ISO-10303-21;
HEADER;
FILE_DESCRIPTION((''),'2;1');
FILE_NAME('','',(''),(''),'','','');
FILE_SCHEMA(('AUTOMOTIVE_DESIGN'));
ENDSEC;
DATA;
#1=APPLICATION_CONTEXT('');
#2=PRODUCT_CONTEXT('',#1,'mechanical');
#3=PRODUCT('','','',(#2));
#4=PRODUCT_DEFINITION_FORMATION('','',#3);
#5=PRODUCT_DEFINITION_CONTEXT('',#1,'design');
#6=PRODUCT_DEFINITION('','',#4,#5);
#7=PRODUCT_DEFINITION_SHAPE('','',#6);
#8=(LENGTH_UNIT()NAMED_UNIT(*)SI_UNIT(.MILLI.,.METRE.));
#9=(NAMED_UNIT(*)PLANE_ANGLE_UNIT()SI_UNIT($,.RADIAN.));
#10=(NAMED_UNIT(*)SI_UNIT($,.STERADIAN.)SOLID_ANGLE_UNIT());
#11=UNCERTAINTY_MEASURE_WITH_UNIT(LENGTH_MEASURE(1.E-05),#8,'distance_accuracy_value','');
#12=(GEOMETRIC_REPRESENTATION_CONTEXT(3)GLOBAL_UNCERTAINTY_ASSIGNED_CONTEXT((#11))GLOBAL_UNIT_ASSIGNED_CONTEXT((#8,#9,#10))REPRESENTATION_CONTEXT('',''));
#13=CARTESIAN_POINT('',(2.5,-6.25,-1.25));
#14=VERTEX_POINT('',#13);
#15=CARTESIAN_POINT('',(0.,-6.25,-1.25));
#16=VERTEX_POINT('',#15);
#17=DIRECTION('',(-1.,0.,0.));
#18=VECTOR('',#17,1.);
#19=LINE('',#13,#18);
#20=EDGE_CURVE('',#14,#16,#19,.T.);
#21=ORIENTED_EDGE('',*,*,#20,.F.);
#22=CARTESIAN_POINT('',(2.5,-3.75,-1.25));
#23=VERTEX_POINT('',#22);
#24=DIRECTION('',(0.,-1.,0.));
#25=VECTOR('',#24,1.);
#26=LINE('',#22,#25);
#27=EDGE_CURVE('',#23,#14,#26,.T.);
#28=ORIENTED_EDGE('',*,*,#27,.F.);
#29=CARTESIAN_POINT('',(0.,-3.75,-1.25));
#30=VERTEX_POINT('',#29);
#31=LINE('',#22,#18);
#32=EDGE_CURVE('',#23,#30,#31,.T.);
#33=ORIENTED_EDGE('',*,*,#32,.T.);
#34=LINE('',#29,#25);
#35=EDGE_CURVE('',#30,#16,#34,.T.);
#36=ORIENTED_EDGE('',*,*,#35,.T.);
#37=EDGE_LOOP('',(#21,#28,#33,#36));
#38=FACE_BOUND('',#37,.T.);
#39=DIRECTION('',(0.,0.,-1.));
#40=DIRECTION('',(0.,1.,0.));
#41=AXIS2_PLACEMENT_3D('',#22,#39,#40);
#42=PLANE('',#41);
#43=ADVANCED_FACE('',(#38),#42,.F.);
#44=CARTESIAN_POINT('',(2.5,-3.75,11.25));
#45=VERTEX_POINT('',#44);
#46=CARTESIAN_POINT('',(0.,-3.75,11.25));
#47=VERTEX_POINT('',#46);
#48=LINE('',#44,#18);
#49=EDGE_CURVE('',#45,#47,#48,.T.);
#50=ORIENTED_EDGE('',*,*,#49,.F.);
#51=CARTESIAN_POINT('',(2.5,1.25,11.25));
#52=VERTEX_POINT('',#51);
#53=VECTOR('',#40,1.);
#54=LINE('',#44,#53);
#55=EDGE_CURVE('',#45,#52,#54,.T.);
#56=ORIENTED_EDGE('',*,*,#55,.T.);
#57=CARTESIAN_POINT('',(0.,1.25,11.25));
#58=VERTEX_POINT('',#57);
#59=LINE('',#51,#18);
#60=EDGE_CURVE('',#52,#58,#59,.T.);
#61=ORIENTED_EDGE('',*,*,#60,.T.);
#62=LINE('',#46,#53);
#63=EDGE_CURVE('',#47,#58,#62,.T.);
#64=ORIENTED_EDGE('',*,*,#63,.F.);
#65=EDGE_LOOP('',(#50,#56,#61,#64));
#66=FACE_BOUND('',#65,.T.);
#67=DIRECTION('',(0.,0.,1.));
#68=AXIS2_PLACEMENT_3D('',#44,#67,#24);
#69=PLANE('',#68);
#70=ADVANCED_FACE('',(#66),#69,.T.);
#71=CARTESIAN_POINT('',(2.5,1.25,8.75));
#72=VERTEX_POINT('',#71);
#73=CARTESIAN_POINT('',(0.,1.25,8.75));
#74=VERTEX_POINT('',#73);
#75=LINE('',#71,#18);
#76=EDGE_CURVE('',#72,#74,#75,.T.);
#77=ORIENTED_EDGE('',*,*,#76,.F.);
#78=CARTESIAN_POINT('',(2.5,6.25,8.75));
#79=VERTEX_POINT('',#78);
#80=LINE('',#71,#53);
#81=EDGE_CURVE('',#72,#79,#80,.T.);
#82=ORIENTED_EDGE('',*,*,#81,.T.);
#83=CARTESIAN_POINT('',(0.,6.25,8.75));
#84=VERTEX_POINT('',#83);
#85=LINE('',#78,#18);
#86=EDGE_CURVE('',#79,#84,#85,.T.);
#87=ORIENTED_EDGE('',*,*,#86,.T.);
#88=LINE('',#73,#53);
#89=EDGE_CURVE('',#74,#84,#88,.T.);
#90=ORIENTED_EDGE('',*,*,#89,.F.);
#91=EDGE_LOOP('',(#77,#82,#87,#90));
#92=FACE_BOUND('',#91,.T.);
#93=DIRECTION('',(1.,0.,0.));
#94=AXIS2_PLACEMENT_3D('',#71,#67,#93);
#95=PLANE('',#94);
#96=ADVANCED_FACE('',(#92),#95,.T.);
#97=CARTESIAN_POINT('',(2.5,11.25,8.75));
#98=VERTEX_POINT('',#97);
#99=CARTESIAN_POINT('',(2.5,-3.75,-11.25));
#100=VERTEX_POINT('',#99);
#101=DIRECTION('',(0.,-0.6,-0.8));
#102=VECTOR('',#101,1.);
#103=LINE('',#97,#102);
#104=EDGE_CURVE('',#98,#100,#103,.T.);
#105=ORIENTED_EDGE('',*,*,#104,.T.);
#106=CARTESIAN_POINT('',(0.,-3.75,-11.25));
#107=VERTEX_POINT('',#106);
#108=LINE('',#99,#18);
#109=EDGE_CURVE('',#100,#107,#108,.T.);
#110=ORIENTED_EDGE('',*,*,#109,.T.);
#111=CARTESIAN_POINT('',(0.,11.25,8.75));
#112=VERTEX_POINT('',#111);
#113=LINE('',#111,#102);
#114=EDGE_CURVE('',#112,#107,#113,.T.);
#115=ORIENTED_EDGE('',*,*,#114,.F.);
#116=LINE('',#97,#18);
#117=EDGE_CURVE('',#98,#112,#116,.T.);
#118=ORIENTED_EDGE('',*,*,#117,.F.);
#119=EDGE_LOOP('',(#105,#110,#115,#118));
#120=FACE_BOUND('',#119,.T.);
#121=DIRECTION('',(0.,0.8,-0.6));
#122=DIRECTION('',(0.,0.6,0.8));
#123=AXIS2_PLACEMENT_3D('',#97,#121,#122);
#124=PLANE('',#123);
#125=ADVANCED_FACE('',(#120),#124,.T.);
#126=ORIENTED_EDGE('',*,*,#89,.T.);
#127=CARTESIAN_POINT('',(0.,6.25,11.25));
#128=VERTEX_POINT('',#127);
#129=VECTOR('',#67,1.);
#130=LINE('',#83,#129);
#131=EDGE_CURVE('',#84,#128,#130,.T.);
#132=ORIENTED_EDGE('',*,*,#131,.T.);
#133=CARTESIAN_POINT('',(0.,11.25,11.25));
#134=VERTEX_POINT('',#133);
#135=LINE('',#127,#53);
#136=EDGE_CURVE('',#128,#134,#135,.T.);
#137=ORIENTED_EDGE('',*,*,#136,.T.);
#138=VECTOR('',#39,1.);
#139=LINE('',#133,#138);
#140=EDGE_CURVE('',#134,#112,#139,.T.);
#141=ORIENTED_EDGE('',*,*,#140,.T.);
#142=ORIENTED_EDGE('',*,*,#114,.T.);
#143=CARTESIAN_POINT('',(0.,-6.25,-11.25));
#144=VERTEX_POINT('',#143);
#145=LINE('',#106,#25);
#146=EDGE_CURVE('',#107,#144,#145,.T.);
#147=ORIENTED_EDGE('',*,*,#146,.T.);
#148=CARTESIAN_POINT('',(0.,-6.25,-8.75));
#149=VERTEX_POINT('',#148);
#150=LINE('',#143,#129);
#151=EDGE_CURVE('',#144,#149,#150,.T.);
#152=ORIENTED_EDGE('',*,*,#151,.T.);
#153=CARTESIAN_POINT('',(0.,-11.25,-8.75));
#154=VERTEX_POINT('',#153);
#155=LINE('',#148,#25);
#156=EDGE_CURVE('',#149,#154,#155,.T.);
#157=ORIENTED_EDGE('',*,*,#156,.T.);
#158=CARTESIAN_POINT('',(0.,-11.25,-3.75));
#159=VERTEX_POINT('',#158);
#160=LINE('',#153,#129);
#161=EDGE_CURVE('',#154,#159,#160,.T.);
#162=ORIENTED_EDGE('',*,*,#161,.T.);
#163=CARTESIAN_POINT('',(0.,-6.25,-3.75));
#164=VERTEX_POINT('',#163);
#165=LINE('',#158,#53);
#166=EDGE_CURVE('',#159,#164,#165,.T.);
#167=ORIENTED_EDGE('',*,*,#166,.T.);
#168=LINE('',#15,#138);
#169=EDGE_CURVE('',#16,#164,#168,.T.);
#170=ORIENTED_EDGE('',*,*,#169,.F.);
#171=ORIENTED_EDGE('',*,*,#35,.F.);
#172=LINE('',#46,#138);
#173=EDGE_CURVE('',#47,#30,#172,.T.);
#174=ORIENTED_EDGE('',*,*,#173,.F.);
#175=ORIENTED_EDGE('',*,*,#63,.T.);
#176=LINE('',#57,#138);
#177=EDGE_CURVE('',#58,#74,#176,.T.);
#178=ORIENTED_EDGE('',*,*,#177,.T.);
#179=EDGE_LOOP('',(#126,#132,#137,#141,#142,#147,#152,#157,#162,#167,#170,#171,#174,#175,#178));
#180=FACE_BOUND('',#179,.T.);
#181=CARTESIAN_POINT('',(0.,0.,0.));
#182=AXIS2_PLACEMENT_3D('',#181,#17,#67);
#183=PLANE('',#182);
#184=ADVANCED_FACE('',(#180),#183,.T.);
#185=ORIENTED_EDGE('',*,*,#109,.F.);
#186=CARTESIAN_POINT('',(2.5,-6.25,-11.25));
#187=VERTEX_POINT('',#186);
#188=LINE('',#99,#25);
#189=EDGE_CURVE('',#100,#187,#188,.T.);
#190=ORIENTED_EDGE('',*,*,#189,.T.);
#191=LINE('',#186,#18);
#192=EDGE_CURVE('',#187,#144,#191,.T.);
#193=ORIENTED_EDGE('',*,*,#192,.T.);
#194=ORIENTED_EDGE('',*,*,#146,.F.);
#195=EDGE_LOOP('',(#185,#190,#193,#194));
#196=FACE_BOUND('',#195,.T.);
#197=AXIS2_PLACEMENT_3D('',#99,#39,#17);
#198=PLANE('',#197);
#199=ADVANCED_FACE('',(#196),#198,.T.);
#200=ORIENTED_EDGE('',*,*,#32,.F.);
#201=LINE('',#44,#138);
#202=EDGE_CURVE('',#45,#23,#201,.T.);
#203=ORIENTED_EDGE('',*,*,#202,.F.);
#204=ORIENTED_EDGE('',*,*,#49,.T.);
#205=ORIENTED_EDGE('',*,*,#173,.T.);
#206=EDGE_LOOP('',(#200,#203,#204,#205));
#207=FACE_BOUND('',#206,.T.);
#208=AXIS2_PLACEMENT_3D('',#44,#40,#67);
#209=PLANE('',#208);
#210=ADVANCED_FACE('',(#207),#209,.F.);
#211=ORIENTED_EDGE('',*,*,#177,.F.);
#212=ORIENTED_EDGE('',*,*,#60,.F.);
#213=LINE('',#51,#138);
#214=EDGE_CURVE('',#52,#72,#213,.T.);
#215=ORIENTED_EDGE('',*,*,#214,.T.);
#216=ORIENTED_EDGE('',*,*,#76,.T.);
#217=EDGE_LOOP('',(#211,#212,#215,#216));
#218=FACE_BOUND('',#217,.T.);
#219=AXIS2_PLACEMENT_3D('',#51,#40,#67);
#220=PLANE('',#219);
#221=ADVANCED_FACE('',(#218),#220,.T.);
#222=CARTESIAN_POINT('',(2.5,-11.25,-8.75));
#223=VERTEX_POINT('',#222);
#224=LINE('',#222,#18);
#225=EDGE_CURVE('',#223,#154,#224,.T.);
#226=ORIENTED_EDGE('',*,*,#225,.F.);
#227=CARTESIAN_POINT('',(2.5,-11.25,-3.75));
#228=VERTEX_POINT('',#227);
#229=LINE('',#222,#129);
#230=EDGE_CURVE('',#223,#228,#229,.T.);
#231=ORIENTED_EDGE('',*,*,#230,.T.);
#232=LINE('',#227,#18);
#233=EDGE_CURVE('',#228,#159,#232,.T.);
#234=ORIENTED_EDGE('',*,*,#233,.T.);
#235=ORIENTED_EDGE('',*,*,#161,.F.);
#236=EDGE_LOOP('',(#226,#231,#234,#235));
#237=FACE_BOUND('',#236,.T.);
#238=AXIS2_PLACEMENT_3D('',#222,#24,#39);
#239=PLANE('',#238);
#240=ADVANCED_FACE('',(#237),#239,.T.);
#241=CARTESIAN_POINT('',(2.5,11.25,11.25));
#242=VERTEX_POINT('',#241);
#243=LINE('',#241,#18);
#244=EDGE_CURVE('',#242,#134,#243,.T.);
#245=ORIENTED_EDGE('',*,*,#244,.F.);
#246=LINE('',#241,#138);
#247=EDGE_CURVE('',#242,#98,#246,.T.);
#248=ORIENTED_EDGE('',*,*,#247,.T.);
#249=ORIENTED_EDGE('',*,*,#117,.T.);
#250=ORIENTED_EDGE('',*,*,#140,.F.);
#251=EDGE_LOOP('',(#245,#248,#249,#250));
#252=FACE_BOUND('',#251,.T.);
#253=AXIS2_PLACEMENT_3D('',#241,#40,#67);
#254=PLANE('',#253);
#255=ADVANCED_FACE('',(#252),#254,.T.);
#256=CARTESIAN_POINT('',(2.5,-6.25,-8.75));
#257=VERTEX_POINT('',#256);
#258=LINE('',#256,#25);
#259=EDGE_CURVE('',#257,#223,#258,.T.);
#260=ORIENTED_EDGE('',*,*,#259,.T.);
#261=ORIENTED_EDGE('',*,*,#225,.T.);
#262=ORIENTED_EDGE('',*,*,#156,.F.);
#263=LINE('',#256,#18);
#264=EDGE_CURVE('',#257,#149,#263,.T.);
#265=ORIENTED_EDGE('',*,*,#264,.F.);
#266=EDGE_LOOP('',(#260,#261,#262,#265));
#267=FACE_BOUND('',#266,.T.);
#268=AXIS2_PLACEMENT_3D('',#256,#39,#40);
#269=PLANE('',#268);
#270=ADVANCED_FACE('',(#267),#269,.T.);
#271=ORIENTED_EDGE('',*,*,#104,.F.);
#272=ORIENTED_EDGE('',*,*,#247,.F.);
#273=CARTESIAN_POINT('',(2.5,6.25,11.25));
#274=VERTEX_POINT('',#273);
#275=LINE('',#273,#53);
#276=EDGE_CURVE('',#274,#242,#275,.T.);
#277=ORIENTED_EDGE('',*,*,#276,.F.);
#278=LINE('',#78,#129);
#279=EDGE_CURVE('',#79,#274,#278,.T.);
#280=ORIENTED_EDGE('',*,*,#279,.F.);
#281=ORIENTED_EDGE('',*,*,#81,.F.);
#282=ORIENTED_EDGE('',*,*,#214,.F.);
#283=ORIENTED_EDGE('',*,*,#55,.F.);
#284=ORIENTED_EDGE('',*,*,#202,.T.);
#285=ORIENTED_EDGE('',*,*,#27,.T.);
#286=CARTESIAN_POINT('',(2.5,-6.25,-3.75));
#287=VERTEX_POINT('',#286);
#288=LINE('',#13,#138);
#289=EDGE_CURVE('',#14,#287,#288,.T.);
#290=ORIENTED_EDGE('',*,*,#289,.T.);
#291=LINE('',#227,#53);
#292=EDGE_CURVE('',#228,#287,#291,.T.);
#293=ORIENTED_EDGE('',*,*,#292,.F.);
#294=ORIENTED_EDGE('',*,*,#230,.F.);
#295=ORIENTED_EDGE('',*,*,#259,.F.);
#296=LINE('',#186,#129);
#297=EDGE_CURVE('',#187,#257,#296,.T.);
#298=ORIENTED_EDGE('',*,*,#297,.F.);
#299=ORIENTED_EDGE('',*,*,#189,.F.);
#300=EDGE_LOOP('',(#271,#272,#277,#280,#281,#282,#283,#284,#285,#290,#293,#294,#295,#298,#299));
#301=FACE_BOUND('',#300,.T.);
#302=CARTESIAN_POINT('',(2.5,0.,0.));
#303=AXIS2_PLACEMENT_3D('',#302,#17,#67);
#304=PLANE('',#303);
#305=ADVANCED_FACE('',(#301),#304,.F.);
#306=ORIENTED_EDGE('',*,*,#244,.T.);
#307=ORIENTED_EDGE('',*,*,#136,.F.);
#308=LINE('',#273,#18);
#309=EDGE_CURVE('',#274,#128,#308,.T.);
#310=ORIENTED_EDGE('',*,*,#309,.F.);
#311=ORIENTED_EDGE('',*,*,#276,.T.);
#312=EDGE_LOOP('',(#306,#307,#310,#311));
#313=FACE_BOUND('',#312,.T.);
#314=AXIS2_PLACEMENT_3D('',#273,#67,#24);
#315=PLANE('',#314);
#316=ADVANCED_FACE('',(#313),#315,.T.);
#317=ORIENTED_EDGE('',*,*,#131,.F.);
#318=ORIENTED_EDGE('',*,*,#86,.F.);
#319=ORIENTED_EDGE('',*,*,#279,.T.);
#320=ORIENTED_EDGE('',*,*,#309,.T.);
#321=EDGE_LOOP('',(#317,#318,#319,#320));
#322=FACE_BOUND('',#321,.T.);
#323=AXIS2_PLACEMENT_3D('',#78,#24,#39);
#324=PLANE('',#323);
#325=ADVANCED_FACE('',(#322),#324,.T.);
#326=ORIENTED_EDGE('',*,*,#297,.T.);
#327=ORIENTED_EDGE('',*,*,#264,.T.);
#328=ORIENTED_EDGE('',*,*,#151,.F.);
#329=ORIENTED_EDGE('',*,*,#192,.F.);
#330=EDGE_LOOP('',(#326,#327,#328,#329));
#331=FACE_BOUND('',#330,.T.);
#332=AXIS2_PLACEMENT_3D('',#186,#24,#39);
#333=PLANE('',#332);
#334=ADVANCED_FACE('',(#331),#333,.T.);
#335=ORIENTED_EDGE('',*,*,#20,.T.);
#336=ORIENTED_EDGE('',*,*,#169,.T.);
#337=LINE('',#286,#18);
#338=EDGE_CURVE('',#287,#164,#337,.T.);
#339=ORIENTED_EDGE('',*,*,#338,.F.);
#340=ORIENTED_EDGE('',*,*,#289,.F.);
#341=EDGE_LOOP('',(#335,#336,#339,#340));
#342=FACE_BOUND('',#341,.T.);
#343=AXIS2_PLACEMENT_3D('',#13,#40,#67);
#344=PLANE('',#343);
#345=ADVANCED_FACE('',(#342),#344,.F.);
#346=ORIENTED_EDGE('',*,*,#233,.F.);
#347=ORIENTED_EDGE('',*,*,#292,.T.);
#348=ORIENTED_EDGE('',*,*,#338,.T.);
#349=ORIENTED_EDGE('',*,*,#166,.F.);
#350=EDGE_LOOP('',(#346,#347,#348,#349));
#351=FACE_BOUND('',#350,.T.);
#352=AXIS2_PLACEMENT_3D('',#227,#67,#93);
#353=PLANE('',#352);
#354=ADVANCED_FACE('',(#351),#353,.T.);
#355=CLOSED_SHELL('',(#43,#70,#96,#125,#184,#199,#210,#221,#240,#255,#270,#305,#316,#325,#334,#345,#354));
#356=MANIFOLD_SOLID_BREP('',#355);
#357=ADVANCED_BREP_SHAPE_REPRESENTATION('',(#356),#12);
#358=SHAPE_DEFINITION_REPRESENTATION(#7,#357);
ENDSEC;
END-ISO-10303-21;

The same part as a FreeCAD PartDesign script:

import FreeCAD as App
import Part
import Sketcher
from FreeCAD import Vector


def add_polygon(sketch, points):
    """Adds a closed chain of lines whose ends are joined by coincident constraints."""
    first, n = sketch.GeometryCount, len(points)
    for a, b in zip(points, points[1:] + points[:1]):
        sketch.addGeometry(Part.LineSegment(App.Vector(*a, 0), App.Vector(*b, 0)), False)
    for i in range(n):
        sketch.addConstraint(Sketcher.Constraint("Coincident", first + i, 2, first + (i + 1) % n, 1))

doc = App.newDocument("Part")
body = doc.addObject("PartDesign::Body", "Body")

# Sketch on YZ plane
sketch1 = doc.addObject("Sketcher::SketchObject", "Sketch")
body.addObject(sketch1)
sketch1.AttachmentSupport = (doc.YZ_Plane, [""])
sketch1.MapMode = "FlatFace"
add_polygon(sketch1, [(-3.8, -11.2), (11.2, 8.8), (11.2, 11.2), (6.2, 11.2), (6.2, 8.8), (1.2, 8.8), (1.2, 11.2), (-3.8, 11.2), (-3.8, -1.2), (-6.2, -1.2), (-6.2, -3.8), (-11.2, -3.8), (-11.2, -8.8), (-6.2, -8.8), (-6.2, -11.2)])  # lines 0-14
sketch1.addConstraint([
    Sketcher.Constraint("Vertical", 1),
    Sketcher.Constraint("Horizontal", 2),
    Sketcher.Constraint("Vertical", 3),
    Sketcher.Constraint("Horizontal", 4),
    Sketcher.Constraint("Vertical", 5),
    Sketcher.Constraint("Horizontal", 6),
    Sketcher.Constraint("Vertical", 7),
    Sketcher.Constraint("Horizontal", 8),
    Sketcher.Constraint("Vertical", 9),
    Sketcher.Constraint("Horizontal", 10),
    Sketcher.Constraint("Vertical", 11),
    Sketcher.Constraint("Horizontal", 12),
    Sketcher.Constraint("Vertical", 13),
    Sketcher.Constraint("Horizontal", 14),
    Sketcher.Constraint("Symmetric", 0, 2, 11, 2, -1, 1),
    Sketcher.Constraint("Symmetric", 3, 2, 12, 2, -1, 1),
    Sketcher.Constraint("Symmetric", 6, 2, 14, 2, -1),
    Sketcher.Constraint("Horizontal", 2, 2, 5, 2),
    Sketcher.Constraint("Vertical", 9, 2, 12, 2),
    Sketcher.Constraint("Equal", 2, 4),
    Sketcher.Constraint("Equal", 4, 6),
    Sketcher.Constraint("Equal", 14, 1),
    Sketcher.Constraint("Equal", 5, 9),
    Sketcher.Constraint("Equal", 12, 11),
    Sketcher.Constraint("DistanceX", 2, 2, 2, 1, 5.0),
    Sketcher.Constraint("Distance", 0, 25.0),
    Sketcher.Constraint("DistanceX", 8, 2, 8, 1, 2.5),
])
pad1 = doc.addObject("PartDesign::Pad", "Pad")
body.addObject(pad1)
pad1.Profile = sketch1
pad1.Length = 2.5

doc.recompute()
